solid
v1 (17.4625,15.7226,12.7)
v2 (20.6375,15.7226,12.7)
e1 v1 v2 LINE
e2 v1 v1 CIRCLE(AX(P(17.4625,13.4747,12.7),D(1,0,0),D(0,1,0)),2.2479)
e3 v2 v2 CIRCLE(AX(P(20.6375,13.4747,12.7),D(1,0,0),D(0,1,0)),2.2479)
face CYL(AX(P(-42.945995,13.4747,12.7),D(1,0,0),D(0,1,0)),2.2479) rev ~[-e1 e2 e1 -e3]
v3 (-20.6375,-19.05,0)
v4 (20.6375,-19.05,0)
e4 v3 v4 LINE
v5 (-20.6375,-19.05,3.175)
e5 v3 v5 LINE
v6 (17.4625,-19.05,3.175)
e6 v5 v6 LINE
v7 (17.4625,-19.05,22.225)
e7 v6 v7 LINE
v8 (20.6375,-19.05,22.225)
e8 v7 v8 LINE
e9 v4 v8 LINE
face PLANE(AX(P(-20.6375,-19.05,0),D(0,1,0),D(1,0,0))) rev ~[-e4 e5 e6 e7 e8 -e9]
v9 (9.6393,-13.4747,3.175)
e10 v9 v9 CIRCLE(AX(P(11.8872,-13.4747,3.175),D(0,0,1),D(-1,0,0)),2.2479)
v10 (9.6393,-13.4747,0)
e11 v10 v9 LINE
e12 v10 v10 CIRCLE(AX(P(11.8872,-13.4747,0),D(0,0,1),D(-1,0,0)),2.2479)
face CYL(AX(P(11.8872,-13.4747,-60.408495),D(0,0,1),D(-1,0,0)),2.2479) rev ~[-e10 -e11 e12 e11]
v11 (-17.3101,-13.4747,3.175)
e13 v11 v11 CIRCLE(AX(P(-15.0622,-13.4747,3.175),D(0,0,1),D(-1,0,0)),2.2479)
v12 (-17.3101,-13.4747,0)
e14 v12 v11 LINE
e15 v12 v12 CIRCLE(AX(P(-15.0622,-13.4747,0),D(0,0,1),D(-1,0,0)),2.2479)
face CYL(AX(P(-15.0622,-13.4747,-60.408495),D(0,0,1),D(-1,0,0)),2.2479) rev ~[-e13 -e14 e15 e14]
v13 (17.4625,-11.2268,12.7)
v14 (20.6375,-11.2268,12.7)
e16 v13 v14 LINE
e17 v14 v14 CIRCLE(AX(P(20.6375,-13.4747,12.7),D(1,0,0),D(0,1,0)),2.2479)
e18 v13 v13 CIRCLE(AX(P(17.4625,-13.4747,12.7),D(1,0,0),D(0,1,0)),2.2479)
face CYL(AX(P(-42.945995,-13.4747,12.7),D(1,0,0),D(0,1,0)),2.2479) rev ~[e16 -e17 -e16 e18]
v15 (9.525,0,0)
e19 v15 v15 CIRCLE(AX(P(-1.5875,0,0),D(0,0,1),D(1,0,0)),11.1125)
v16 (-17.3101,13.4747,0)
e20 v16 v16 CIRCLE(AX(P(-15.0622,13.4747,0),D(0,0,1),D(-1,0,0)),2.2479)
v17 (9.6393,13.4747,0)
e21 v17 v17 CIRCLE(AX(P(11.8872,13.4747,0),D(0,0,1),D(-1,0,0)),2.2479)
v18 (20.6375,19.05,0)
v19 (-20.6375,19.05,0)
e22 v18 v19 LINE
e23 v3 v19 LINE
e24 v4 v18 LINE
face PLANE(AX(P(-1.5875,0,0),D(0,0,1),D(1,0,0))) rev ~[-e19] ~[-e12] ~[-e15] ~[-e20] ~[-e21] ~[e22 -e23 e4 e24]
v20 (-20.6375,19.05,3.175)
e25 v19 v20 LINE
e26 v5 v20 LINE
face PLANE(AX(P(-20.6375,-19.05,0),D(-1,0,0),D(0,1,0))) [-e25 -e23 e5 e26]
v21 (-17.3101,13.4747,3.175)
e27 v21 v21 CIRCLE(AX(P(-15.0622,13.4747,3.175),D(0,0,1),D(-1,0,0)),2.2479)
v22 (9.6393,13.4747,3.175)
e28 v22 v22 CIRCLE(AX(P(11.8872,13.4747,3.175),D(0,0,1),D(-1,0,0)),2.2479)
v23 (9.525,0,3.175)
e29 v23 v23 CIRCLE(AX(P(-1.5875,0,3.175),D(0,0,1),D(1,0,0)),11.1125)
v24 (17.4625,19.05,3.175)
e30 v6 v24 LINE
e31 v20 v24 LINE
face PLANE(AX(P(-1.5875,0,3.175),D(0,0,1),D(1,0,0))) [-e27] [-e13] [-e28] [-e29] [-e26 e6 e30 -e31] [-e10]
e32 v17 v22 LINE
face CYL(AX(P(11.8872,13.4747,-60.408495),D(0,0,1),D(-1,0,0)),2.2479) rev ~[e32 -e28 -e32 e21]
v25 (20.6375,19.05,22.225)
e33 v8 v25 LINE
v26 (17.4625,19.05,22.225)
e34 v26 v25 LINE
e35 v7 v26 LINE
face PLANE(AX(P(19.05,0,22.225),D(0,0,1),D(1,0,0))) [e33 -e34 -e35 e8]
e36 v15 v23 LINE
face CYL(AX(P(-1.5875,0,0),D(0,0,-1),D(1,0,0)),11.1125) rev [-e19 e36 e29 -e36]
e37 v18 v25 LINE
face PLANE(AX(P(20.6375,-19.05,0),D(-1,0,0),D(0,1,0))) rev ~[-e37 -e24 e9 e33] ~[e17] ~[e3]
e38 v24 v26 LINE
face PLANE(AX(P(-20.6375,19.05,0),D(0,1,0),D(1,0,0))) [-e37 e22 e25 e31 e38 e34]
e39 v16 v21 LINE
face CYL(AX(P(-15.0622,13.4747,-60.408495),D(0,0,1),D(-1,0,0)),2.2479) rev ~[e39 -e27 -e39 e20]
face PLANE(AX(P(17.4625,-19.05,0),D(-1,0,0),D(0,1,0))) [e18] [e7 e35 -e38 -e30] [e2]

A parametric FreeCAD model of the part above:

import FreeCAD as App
import Part
import Sketcher

V = App.Vector
Q = App.Units.Quantity

doc = App.newDocument("Part")
params = doc.addObject("Spreadsheet::Sheet", "Params")
for row, (alias, value) in enumerate([
    ("sketch1_height", "1.5 in"),
    ("sketch1_width", "0.125 in"),
    ("pad1_length", "0.875 in"),
    ("sketch2_diameter", "0.875 in"),
    ("sketch2_width", "1.5 in"),
    ("pad2_length", "0.125 in"),
    ("sketch3_diameter", "0.177 in"),
    ("hole_diameter", "0.177 in"),
    ("sketch4_diameter", "0.177 in"),
    ("hole2_diameter", "0.177 in"),
    ("sketch5_diameter", "0.177 in"),
    ("hole3_diameter", "0.177 in"),
    ("sketch6_diameter", "0.177 in"),
    ("hole4_diameter", "0.177 in"),
    ("sketch7_diameter", "0.177 in"),
    ("hole5_diameter", "0.177 in"),
    ("sketch8_diameter", "0.177 in"),
    ("hole6_diameter", "0.177 in"),
], start=1):
    params.set(f"A{row}", alias)
    params.set(f"B{row}", "=" + value)
    params.setAlias(f"B{row}", alias)

body = doc.addObject("PartDesign::Body", "Body")

sketch1 = body.newObject("Sketcher::SketchObject", "Sketch")
sketch1.AttachmentSupport = (doc.getObject("XY_Plane"), [""])
sketch1.MapMode = "FlatFace"
sketch1.addGeometry(Part.LineSegment(V(17.4625, 19.05, 0), V(17.4625, -19.05, 0)), False)
sketch1.addGeometry(Part.LineSegment(V(17.4625, -19.05, 0), V(20.6375, -19.05, 0)), False)
sketch1.addGeometry(Part.LineSegment(V(20.6375, -19.05, 0), V(20.6375, 19.05, 0)), False)
sketch1.addGeometry(Part.LineSegment(V(20.6375, 19.05, 0), V(17.4625, 19.05, 0)), False)
sketch1.addConstraint(Sketcher.Constraint("Coincident", 0, 2, 1, 1))
sketch1.addConstraint(Sketcher.Constraint("Coincident", 1, 2, 2, 1))
sketch1.addConstraint(Sketcher.Constraint("Coincident", 2, 2, 3, 1))
sketch1.addConstraint(Sketcher.Constraint("Coincident", 3, 2, 0, 1))
sketch1.addConstraint(Sketcher.Constraint("Vertical", 0))
sketch1.addConstraint(Sketcher.Constraint("Horizontal", 1))
sketch1.addConstraint(Sketcher.Constraint("Vertical", 2))
sketch1.addConstraint(Sketcher.Constraint("Horizontal", 3))
sketch1.addConstraint(Sketcher.Constraint("DistanceY", 0, 2, 0, 1, Q("1.5 in")))
sketch1.addConstraint(Sketcher.Constraint("DistanceX", 1, 1, 1, 2, Q("0.125 in")))
sketch1.addConstraint(Sketcher.Constraint("DistanceY", 0, 2, -1, 1, Q("0.75 in")))
sketch1.addConstraint(Sketcher.Constraint("DistanceX", -1, 1, 0, 2, Q("0.6875 in")))
sketch1.setExpression("Constraints[8]", "Params.sketch1_height")
sketch1.setExpression("Constraints[9]", "Params.sketch1_width")
pad1 = body.newObject("PartDesign::Pad", "Pad")
pad1.Profile = sketch1
pad1.setExpression("Length", "Params.pad1_length")

sketch2 = body.newObject("Sketcher::SketchObject", "Sketch001")
sketch2.AttachmentSupport = (doc.getObject("XY_Plane"), [""])
sketch2.MapMode = "FlatFace"
sketch2.addGeometry(Part.LineSegment(V(-20.6375, 19.05, 0), V(-20.6375, -19.05, 0)), False)
sketch2.addGeometry(Part.LineSegment(V(-20.6375, -19.05, 0), V(17.4625, -19.05, 0)), False)
sketch2.addGeometry(Part.LineSegment(V(17.4625, -19.05, 0), V(17.4625, 19.05, 0)), False)
sketch2.addGeometry(Part.LineSegment(V(17.4625, 19.05, 0), V(-20.6375, 19.05, 0)), False)
sketch2.addGeometry(Part.Circle(V(-1.5875, 0, 0), V(0, 0, 1), 11.1125), False)
sketch2.addConstraint(Sketcher.Constraint("Coincident", 0, 2, 1, 1))
sketch2.addConstraint(Sketcher.Constraint("Coincident", 1, 2, 2, 1))
sketch2.addConstraint(Sketcher.Constraint("Coincident", 2, 2, 3, 1))
sketch2.addConstraint(Sketcher.Constraint("Coincident", 3, 2, 0, 1))
sketch2.addConstraint(Sketcher.Constraint("Vertical", 0))
sketch2.addConstraint(Sketcher.Constraint("Horizontal", 1))
sketch2.addConstraint(Sketcher.Constraint("Vertical", 2))
sketch2.addConstraint(Sketcher.Constraint("Horizontal", 3))
sketch2.addConstraint(Sketcher.Constraint("PointOnObject", 4, 3, -1))
sketch2.addConstraint(Sketcher.Constraint("Equal", 3, 0))
sketch2.addConstraint(Sketcher.Constraint("Diameter", 4, Q("0.875 in")))
sketch2.addConstraint(Sketcher.Constraint("DistanceX", 1, 1, 1, 2, Q("1.5 in")))
sketch2.addConstraint(Sketcher.Constraint("DistanceY", 0, 2, -1, 1, Q("0.75 in")))
sketch2.addConstraint(Sketcher.Constraint("DistanceX", 0, 2, 4, 3, Q("0.75 in")))
sketch2.addConstraint(Sketcher.Constraint("DistanceX", 4, 3, -1, 1, Q("0.0625 in")))
sketch2.setExpression("Constraints[10]", "Params.sketch2_diameter")
sketch2.setExpression("Constraints[11]", "Params.sketch2_width")
pad2 = body.newObject("PartDesign::Pad", "Pad001")
pad2.Profile = sketch2
pad2.setExpression("Length", "Params.pad2_length")

sketch3 = body.newObject("Sketcher::SketchObject", "Sketch002")
sketch3.AttachmentSupport = (doc.getObject("XY_Plane"), [""])
sketch3.MapMode = "FlatFace"
sketch3.addGeometry(Part.Circle(V(-15.0622, -13.4747, 0), V(0, 0, 1), 2.2479), False)
sketch3.addConstraint(Sketcher.Constraint("Diameter", 0, Q("0.177 in")))
sketch3.addConstraint(Sketcher.Constraint("DistanceX", 0, 3, -1, 1, Q("0.593 in")))
sketch3.addConstraint(Sketcher.Constraint("DistanceY", 0, 3, -1, 1, Q("0.5305 in")))
sketch3.setExpression("Constraints[0]", "Params.sketch3_diameter")
doc.recompute()
hole = body.newObject("PartDesign::Hole", "Hole")
hole.Profile = sketch3
hole.ThreadType = "None"
hole.setExpression("Diameter", "Params.hole_diameter")
hole.DepthType = "ThroughAll"
hole.Reversed = True

sketch4 = body.newObject("Sketcher::SketchObject", "Sketch003")
sketch4.AttachmentSupport = (doc.getObject("XY_Plane"), [""])
sketch4.MapMode = "FlatFace"
sketch4.addGeometry(Part.Circle(V(-15.0622, 13.4747, 0), V(0, 0, 1), 2.2479), False)
sketch4.addConstraint(Sketcher.Constraint("Diameter", 0, Q("0.177 in")))
sketch4.addConstraint(Sketcher.Constraint("DistanceX", 0, 3, -1, 1, Q("0.593 in")))
sketch4.addConstraint(Sketcher.Constraint("DistanceY", -1, 1, 0, 3, Q("0.5305 in")))
sketch4.setExpression("Constraints[0]", "Params.sketch4_diameter")
doc.recompute()
hole2 = body.newObject("PartDesign::Hole", "Hole001")
hole2.Profile = sketch4
hole2.ThreadType = "None"
hole2.setExpression("Diameter", "Params.hole2_diameter")
hole2.DepthType = "ThroughAll"
hole2.Reversed = True

sketch5 = body.newObject("Sketcher::SketchObject", "Sketch004")
sketch5.AttachmentSupport = (doc.getObject("XY_Plane"), [""])
sketch5.MapMode = "FlatFace"
sketch5.addGeometry(Part.Circle(V(11.8872, 13.4747, 0), V(0, 0, 1), 2.2479), False)
sketch5.addConstraint(Sketcher.Constraint("Diameter", 0, Q("0.177 in")))
sketch5.addConstraint(Sketcher.Constraint("DistanceX", -1, 1, 0, 3, Q("0.468 in")))
sketch5.addConstraint(Sketcher.Constraint("DistanceY", -1, 1, 0, 3, Q("0.5305 in")))
sketch5.setExpression("Constraints[0]", "Params.sketch5_diameter")
doc.recompute()
hole3 = body.newObject("PartDesign::Hole", "Hole002")
hole3.Profile = sketch5
hole3.ThreadType = "None"
hole3.setExpression("Diameter", "Params.hole3_diameter")
hole3.DepthType = "ThroughAll"
hole3.Reversed = True

sketch6 = body.newObject("Sketcher::SketchObject", "Sketch005")
sketch6.AttachmentSupport = (doc.getObject("XY_Plane"), [""])
sketch6.MapMode = "FlatFace"
sketch6.addGeometry(Part.Circle(V(11.8872, -13.4747, 0), V(0, 0, 1), 2.2479), False)
sketch6.addConstraint(Sketcher.Constraint("Diameter", 0, Q("0.177 in")))
sketch6.addConstraint(Sketcher.Constraint("DistanceX", -1, 1, 0, 3, Q("0.468 in")))
sketch6.addConstraint(Sketcher.Constraint("DistanceY", 0, 3, -1, 1, Q("0.5305 in")))
sketch6.setExpression("Constraints[0]", "Params.sketch6_diameter")
doc.recompute()
hole4 = body.newObject("PartDesign::Hole", "Hole003")
hole4.Profile = sketch6
hole4.ThreadType = "None"
hole4.setExpression("Diameter", "Params.hole4_diameter")
hole4.DepthType = "ThroughAll"
hole4.Reversed = True

sketch7 = body.newObject("Sketcher::SketchObject", "Sketch006")
sketch7.AttachmentSupport = (doc.getObject("YZ_Plane"), [""])
sketch7.MapMode = "FlatFace"
sketch7.AttachmentOffset = App.Placement(V(0, 0, 0.6875 * 25.4), App.Rotation())
sketch7.addGeometry(Part.Circle(V(13.4747, 12.7, 0), V(0, 0, 1), 2.2479), False)
sketch7.addConstraint(Sketcher.Constraint("Diameter", 0, Q("0.177 in")))
sketch7.addConstraint(Sketcher.Constraint("DistanceY", -1, 1, 0, 3, Q("0.5 in")))
sketch7.addConstraint(Sketcher.Constraint("DistanceX", -1, 1, 0, 3, Q("0.5305 in")))
sketch7.setExpression("Constraints[0]", "Params.sketch7_diameter")
doc.recompute()
hole5 = body.newObject("PartDesign::Hole", "Hole004")
hole5.Profile = sketch7
hole5.ThreadType = "None"
hole5.setExpression("Diameter", "Params.hole5_diameter")
hole5.DepthType = "ThroughAll"
hole5.Reversed = True

sketch8 = body.newObject("Sketcher::SketchObject", "Sketch007")
sketch8.AttachmentSupport = (doc.getObject("YZ_Plane"), [""])
sketch8.MapMode = "FlatFace"
sketch8.AttachmentOffset = App.Placement(V(0, 0, 0.6875 * 25.4), App.Rotation())
sketch8.addGeometry(Part.Circle(V(-13.4747, 12.7, 0), V(0, 0, 1), 2.2479), False)
sketch8.addConstraint(Sketcher.Constraint("Diameter", 0, Q("0.177 in")))
sketch8.addConstraint(Sketcher.Constraint("DistanceY", -1, 1, 0, 3, Q("0.5 in")))
sketch8.addConstraint(Sketcher.Constraint("DistanceX", 0, 3, -1, 1, Q("0.5305 in")))
sketch8.setExpression("Constraints[0]", "Params.sketch8_diameter")
doc.recompute()
hole6 = body.newObject("PartDesign::Hole", "Hole005")
hole6.Profile = sketch8
hole6.ThreadType = "None"
hole6.setExpression("Diameter", "Params.hole6_diameter")
hole6.DepthType = "ThroughAll"
hole6.Reversed = True

doc.recompute()
